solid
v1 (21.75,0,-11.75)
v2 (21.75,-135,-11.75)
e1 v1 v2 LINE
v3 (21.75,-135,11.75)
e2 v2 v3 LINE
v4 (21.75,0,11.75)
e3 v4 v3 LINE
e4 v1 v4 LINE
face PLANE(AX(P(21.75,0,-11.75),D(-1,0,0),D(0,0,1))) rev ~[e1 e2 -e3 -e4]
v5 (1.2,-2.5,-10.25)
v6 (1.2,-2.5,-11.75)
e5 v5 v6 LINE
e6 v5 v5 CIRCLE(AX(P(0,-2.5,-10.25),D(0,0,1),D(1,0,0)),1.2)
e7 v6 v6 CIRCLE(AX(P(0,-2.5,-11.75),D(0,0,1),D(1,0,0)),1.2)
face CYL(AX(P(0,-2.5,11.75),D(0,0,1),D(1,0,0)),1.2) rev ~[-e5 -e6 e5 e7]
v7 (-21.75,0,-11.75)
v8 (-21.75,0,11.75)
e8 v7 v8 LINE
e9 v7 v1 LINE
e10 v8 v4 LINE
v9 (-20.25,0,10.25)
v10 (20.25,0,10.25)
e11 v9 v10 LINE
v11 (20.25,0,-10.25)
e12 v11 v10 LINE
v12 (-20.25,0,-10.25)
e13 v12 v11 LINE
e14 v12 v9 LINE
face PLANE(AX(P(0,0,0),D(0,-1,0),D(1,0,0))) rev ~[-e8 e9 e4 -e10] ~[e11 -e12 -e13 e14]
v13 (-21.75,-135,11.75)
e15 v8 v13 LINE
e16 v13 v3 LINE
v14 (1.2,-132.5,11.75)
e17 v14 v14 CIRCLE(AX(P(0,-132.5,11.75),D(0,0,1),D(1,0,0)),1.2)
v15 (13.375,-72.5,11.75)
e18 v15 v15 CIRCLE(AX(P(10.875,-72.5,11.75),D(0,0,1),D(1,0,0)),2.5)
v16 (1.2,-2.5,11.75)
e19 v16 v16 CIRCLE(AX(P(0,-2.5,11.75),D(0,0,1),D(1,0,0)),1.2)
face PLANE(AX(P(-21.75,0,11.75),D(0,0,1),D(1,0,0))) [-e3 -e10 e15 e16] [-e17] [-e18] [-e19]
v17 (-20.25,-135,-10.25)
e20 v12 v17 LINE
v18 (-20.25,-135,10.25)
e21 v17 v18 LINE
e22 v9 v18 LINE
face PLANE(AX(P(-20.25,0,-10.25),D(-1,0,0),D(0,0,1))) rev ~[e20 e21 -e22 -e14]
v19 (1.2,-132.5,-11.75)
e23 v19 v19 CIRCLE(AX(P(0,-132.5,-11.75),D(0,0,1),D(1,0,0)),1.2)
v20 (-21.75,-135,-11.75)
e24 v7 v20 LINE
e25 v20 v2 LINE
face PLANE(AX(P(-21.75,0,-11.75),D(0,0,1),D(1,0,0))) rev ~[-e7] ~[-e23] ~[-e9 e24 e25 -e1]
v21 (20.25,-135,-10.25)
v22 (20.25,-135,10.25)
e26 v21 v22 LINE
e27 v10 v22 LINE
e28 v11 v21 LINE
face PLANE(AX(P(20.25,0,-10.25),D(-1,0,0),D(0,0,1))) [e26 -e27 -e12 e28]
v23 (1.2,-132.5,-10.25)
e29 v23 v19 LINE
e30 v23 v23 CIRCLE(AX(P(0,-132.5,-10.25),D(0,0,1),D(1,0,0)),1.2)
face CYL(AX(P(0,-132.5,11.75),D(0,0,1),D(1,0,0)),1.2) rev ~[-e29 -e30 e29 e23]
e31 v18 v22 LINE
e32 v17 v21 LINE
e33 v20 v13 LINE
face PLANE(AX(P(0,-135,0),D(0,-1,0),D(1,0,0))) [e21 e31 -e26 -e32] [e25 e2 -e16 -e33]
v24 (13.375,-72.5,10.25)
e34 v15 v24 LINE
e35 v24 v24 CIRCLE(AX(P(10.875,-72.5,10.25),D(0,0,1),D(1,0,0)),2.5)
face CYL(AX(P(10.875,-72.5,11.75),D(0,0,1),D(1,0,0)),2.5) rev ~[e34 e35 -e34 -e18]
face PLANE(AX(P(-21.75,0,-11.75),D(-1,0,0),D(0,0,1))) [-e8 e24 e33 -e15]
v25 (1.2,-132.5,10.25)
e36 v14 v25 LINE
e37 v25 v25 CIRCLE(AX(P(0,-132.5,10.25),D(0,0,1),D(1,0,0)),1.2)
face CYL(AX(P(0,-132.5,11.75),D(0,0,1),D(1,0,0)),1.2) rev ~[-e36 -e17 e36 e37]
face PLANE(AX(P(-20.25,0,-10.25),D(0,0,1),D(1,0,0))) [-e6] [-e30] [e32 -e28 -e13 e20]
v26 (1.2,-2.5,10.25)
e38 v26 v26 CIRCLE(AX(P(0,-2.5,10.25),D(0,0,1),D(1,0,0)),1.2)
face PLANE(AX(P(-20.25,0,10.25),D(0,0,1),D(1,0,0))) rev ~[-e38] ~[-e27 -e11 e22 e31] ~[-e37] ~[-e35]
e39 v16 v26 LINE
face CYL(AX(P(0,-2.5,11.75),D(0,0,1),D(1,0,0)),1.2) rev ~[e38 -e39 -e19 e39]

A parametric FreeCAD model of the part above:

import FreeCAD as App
import Part
import Sketcher

V = App.Vector


def add_polygon(sketch, points):
    """Adds a closed chain of lines whose ends are joined by coincident constraints."""
    first, n = sketch.GeometryCount, len(points)
    for a, b in zip(points, points[1:] + points[:1]):
        sketch.addGeometry(Part.LineSegment(App.Vector(*a, 0), App.Vector(*b, 0)), False)
    for i in range(n):
        sketch.addConstraint(Sketcher.Constraint("Coincident", first + i, 2, first + (i + 1) % n, 1))

doc = App.newDocument("Part")
body = doc.addObject("PartDesign::Body", "Body")

sketch1 = doc.addObject("Sketcher::SketchObject", "Sketch")
body.addObject(sketch1)
sketch1.AttachmentSupport = (doc.XZ_Plane, [""])
sketch1.MapMode = "FlatFace"
add_polygon(sketch1, [(-21.75, 11.75), (-21.75, -11.75), (21.75, -11.75), (21.75, 11.75)])
add_polygon(sketch1, [(20.25, -10.25), (-20.25, -10.25), (-20.25, 10.25), (20.25, 10.25)])
sketch1.addConstraint(Sketcher.Constraint("Vertical", 0))
sketch1.addConstraint(Sketcher.Constraint("Horizontal", 1))
sketch1.addConstraint(Sketcher.Constraint("Vertical", 2))
sketch1.addConstraint(Sketcher.Constraint("Horizontal", 3))
sketch1.addConstraint(Sketcher.Constraint("Horizontal", 4))
sketch1.addConstraint(Sketcher.Constraint("Vertical", 5))
sketch1.addConstraint(Sketcher.Constraint("Horizontal", 6))
sketch1.addConstraint(Sketcher.Constraint("Vertical", 7))
sketch1.addConstraint(Sketcher.Constraint("Symmetric", 0, 2, 2, 2, -1, 1))
sketch1.addConstraint(Sketcher.Constraint("Symmetric", 4, 2, 6, 2, -1, 1))
sketch1.addConstraint(Sketcher.Constraint("DistanceX", 1, 1, 1, 2, 43.5))
sketch1.addConstraint(Sketcher.Constraint("DistanceX", 4, 2, 4, 1, 40.5))
sketch1.addConstraint(Sketcher.Constraint("DistanceY", 0, 2, 0, 1, 23.5))
sketch1.addConstraint(Sketcher.Constraint("DistanceY", 5, 1, 5, 2, 20.5))
pad1 = doc.addObject("PartDesign::Pad", "Pad")
body.addObject(pad1)
pad1.Profile = sketch1
pad1.Length = 135

sketch2 = doc.addObject("Sketcher::SketchObject", "Sketch001")
body.addObject(sketch2)
sketch2.AttachmentSupport = (doc.XY_Plane, [""])
sketch2.MapMode = "FlatFace"
sketch2.AttachmentOffset = App.Placement(V(0, 0, 11.75), App.Rotation())
sketch2.addGeometry(Part.Circle(V(10.875, -72.5, 0), V(0, 0, 1), 2.5), False)
sketch2.addConstraint(Sketcher.Constraint("Diameter", 0, 5.0))
sketch2.addConstraint(Sketcher.Constraint("DistanceY", 0, 3, -1, 1, 72.5))
sketch2.addConstraint(Sketcher.Constraint("DistanceX", -1, 1, 0, 3, 10.875))
pocket1 = doc.addObject("PartDesign::Pocket", "Pocket")
body.addObject(pocket1)
pocket1.Profile = sketch2
pocket1.Length = 1.5

sketch3 = doc.addObject("Sketcher::SketchObject", "Sketch002")
body.addObject(sketch3)
sketch3.AttachmentSupport = (doc.XY_Plane, [""])
sketch3.MapMode = "FlatFace"
sketch3.AttachmentOffset = App.Placement(V(0, 0, 11.75), App.Rotation())
sketch3.addGeometry(Part.Circle(V(0, -132.5, 0), V(0, 0, 1), 1.2), False)
sketch3.addGeometry(Part.Circle(V(0, -2.5, 0), V(0, 0, 1), 1.2), False)
sketch3.addConstraint(Sketcher.Constraint("Equal", 0, 1))
sketch3.addConstraint(Sketcher.Constraint("PointOnObject", 0, 3, -2))
sketch3.addConstraint(Sketcher.Constraint("PointOnObject", 1, 3, -2))
sketch3.addConstraint(Sketcher.Constraint("Diameter", 0, 2.4))
sketch3.addConstraint(Sketcher.Constraint("DistanceY", 0, 3, 1, 3, 130.0))
sketch3.addConstraint(Sketcher.Constraint("DistanceY", 0, 3, -1, 1, 132.5))
pocket2 = doc.addObject("PartDesign::Pocket", "Pocket001")
body.addObject(pocket2)
pocket2.Profile = sketch3
pocket2.Length = 25

doc.recompute()
